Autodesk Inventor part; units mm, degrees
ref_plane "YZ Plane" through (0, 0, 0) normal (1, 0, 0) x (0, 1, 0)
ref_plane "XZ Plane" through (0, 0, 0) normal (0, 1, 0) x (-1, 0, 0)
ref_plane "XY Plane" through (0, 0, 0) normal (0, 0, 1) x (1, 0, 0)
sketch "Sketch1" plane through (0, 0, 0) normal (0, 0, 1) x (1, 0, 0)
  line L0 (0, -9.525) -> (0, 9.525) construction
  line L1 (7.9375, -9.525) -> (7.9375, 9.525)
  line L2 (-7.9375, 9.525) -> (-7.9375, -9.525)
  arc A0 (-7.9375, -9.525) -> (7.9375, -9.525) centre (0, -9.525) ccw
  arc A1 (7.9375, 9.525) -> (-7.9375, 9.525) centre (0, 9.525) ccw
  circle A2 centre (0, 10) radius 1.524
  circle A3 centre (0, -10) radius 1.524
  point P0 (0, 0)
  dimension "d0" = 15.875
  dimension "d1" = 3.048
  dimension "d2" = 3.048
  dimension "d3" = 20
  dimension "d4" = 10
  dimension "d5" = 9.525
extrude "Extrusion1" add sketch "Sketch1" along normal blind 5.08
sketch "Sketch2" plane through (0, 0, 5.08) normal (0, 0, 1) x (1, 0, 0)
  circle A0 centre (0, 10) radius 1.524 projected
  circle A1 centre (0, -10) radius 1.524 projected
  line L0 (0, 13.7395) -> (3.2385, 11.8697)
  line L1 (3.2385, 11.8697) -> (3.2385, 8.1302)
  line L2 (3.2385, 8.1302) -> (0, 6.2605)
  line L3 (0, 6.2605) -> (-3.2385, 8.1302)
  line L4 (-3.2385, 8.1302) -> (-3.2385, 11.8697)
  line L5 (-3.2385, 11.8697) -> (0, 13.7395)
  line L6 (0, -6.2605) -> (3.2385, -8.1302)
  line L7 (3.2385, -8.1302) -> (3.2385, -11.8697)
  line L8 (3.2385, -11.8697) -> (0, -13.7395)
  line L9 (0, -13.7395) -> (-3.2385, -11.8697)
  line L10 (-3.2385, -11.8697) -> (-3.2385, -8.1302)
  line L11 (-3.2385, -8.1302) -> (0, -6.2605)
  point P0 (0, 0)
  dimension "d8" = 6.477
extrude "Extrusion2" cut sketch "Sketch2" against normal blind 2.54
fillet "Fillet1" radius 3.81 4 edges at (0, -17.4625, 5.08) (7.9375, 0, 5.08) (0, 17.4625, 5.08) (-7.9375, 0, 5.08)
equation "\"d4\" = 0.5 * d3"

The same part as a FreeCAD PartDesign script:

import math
import FreeCAD as App
import Part
import Sketcher

V = App.Vector
Q = App.Units.Quantity


def edges_at(feature, points):
    """Names of the edges that pass closest to the given points."""
    edges = feature.Shape.Edges
    near = lambda p: min(range(len(edges)), key=lambda i: edges[i].distToShape(Part.Vertex(*p))[0])
    return sorted({f"Edge{near(p) + 1}" for p in points})


def add_polygon(sketch, points):
    """Adds a closed chain of lines whose ends are joined by coincident constraints."""
    first, n = sketch.GeometryCount, len(points)
    for a, b in zip(points, points[1:] + points[:1]):
        sketch.addGeometry(Part.LineSegment(App.Vector(*a, 0), App.Vector(*b, 0)), False)
    for i in range(n):
        sketch.addConstraint(Sketcher.Constraint("Coincident", first + i, 2, first + (i + 1) % n, 1))

doc = App.newDocument("Part")
body = doc.addObject("PartDesign::Body", "Body")

sketch1 = body.newObject("Sketcher::SketchObject", "Sketch")
sketch1.AttachmentSupport = (doc.getObject("XY_Plane"), [""])
sketch1.MapMode = "FlatFace"
sketch1.addGeometry(Part.ArcOfCircle(Part.Circle(V(0, -9.5, 0), V(0, 0, 1), 7.9), math.radians(180), math.radians(360)), False)
sketch1.addGeometry(Part.LineSegment(V(7.9, -9.5, 0), V(7.9, 9.5, 0)), False)
sketch1.addGeometry(Part.ArcOfCircle(Part.Circle(V(0, 9.5, 0), V(0, 0, 1), 7.9), math.radians(0), math.radians(180)), False)
sketch1.addGeometry(Part.LineSegment(V(-7.9, 9.5, 0), V(-7.9, -9.5, 0)), False)
sketch1.addGeometry(Part.Circle(V(0, -10, 0), V(0, 0, 1), 1.5), False)
sketch1.addGeometry(Part.Circle(V(0, 10, 0), V(0, 0, 1), 1.5), False)
sketch1.addConstraint(Sketcher.Constraint("Tangent", 0, 2, 1, 1))
sketch1.addConstraint(Sketcher.Constraint("Tangent", 1, 2, 2, 1))
sketch1.addConstraint(Sketcher.Constraint("Tangent", 2, 2, 3, 1))
sketch1.addConstraint(Sketcher.Constraint("Tangent", 3, 2, 0, 1))
sketch1.addConstraint(Sketcher.Constraint("Vertical", 1))
sketch1.addConstraint(Sketcher.Constraint("Vertical", 3))
sketch1.addConstraint(Sketcher.Constraint("Equal", 4, 5))
sketch1.addConstraint(Sketcher.Constraint("Symmetric", 0, 3, 2, 3, -1, 1))
sketch1.addConstraint(Sketcher.Constraint("Symmetric", 4, 3, 5, 3, -1, 1))
sketch1.addConstraint(Sketcher.Constraint("PointOnObject", 4, 3, -2))
sketch1.addConstraint(Sketcher.Constraint("Diameter", 4, Q("0.12 in")))
sketch1.addConstraint(Sketcher.Constraint("Radius", 0, Q("0.3125 in")))
sketch1.addConstraint(Sketcher.Constraint("DistanceY", 0, 3, -1, 1, Q("0.375 in")))
sketch1.addConstraint(Sketcher.Constraint("DistanceY", 4, 3, -1, 1, Q("0.3937 in")))
pad1 = body.newObject("PartDesign::Pad", "Pad")
pad1.Profile = sketch1
pad1.Length = Q("0.2 in")

sketch2 = body.newObject("Sketcher::SketchObject", "Sketch001")
sketch2.AttachmentSupport = (doc.getObject("XY_Plane"), [""])
sketch2.MapMode = "FlatFace"
sketch2.AttachmentOffset = App.Placement(V(0, 0, 0.2 * 25.4), App.Rotation())
add_polygon(sketch2, [(3.2, 11.9), (0, 13.7), (-3.2, 11.9), (-3.2, 8.1), (0, 6.3), (3.2, 8.1)])
sketch2.addGeometry(Part.Circle(V(0, 10, 0), V(0, 0, 1), 1.5), False)
add_polygon(sketch2, [(3.2, -8.1), (0, -6.3), (-3.2, -8.1), (-3.2, -11.9), (0, -13.7), (3.2, -11.9)])
sketch2.addGeometry(Part.Circle(V(0, -10, 0), V(0, 0, 1), 1.5), False)
sketch2.addConstraint(Sketcher.Constraint("Vertical", 2))
sketch2.addConstraint(Sketcher.Constraint("Vertical", 5))
sketch2.addConstraint(Sketcher.Constraint("Vertical", 9))
sketch2.addConstraint(Sketcher.Constraint("Vertical", 12))
sketch2.addConstraint(Sketcher.Constraint("Equal", 6, 13))
sketch2.addConstraint(Sketcher.Constraint("Symmetric", 6, 3, 13, 3, -1, 1))
sketch2.addConstraint(Sketcher.Constraint("Symmetric", 3, 2, 7, 2, -1, 1))
sketch2.addConstraint(Sketcher.Constraint("Symmetric", 4, 2, 8, 2, -1, 1))
sketch2.addConstraint(Sketcher.Constraint("Symmetric", 0, 2, 10, 2, -1, 1))
sketch2.addConstraint(Sketcher.Constraint("Symmetric", 1, 2, 11, 2, -1, 1))
sketch2.addConstraint(Sketcher.Constraint("Symmetric", 2, 2, 4, 2, -2))
sketch2.addConstraint(Sketcher.Constraint("PointOnObject", 6, 3, -2))
sketch2.addConstraint(Sketcher.Constraint("PointOnObject", 0, 2, -2))
sketch2.addConstraint(Sketcher.Constraint("PointOnObject", 3, 2, -2))
sketch2.addConstraint(Sketcher.Constraint("Parallel", 0, 3))
sketch2.addConstraint(Sketcher.Constraint("Parallel", 1, 4))
sketch2.addConstraint(Sketcher.Constraint("Parallel", 3, 7))
sketch2.addConstraint(Sketcher.Constraint("Parallel", 7, 10))
sketch2.addConstraint(Sketcher.Constraint("Diameter", 6, Q("0.12 in")))
sketch2.addConstraint(Sketcher.Constraint("Angle", 0, Q("149.9993 deg")))
sketch2.addConstraint(Sketcher.Constraint("DistanceX", 2, 2, 4, 2, Q("0.255 in")))
sketch2.addConstraint(Sketcher.Constraint("DistanceY", 13, 3, 1, 2, Q("0.861 in")))
sketch2.addConstraint(Sketcher.Constraint("DistanceY", 2, 2, 2, 1, Q("3.7395 mm")))
sketch2.addConstraint(Sketcher.Constraint("DistanceY", -1, 1, 6, 3, Q("0.3937 in")))
pocket1 = body.newObject("PartDesign::Pocket", "Pocket")
pocket1.Profile = sketch2
pocket1.Length = Q("0.1 in")
doc.recompute()

fillet = body.newObject("PartDesign::Fillet", "Fillet")
fillet.Base = (pocket1, edges_at(pocket1, [
    (0, -17.462, 5.08),
    (7.938, 0, 5.08),
    (0, 17.462, 5.08),
    (-7.938, 0, 5.08),
]))
fillet.Radius = Q("0.15 in")

doc.recompute()
